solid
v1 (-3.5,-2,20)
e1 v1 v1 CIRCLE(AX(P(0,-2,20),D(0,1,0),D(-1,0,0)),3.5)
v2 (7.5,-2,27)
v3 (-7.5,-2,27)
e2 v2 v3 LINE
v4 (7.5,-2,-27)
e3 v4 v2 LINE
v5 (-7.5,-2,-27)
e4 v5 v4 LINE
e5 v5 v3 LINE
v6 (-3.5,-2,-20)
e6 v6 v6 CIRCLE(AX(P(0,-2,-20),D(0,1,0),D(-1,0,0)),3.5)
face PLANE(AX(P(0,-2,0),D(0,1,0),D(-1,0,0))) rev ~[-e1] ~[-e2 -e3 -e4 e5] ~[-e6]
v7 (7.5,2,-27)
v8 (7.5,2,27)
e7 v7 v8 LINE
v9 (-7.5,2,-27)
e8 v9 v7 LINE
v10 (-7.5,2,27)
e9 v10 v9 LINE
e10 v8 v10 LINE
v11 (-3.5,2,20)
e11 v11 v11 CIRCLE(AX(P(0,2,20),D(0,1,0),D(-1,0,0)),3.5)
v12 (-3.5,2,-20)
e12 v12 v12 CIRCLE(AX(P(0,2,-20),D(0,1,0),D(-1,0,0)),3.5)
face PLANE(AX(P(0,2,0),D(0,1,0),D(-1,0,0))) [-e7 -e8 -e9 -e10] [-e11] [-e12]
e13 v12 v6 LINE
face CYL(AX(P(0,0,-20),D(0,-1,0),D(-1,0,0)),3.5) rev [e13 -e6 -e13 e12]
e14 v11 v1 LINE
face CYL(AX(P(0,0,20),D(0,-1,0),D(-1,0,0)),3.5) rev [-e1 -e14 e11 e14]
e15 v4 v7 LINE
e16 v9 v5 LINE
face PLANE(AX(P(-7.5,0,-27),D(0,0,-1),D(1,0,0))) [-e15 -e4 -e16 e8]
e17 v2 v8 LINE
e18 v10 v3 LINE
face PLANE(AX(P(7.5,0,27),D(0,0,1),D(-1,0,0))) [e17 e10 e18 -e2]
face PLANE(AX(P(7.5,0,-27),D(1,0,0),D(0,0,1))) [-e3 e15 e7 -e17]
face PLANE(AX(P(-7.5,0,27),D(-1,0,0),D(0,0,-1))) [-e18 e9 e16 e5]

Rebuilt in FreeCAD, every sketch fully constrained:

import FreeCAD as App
import Part
import Sketcher
Q = App.Units.Quantity

doc = App.newDocument("Part")
params = doc.addObject("Spreadsheet::Sheet", "Params")
for row, (alias, value) in enumerate([
    ("sketch1_diameter", "7 mm"),
    ("sketch1_width", "15 mm"),
    ("sketch1_height", "54 mm"),
    ("pad1_length", "4 mm"),
], start=1):
    params.set(f"A{row}", alias)
    params.set(f"B{row}", "=" + value)
    params.setAlias(f"B{row}", alias)

body = doc.addObject("PartDesign::Body", "Body")

sketch1 = doc.addObject("Sketcher::SketchObject", "Sketch")
body.addObject(sketch1)
sketch1.AttachmentSupport = (doc.XZ_Plane, [""])
sketch1.MapMode = "FlatFace"
sketch1.addGeometry([
    Part.LineSegment(App.Vector(-7.5, 27, 0), App.Vector(7.5, 27, 0)),
    Part.LineSegment(App.Vector(7.5, 27, 0), App.Vector(7.5, -27, 0)),
    Part.LineSegment(App.Vector(7.5, -27, 0), App.Vector(-7.5, -27, 0)),
    Part.LineSegment(App.Vector(-7.5, -27, 0), App.Vector(-7.5, 27, 0)),
    Part.Circle(App.Vector(0, -20, 0), App.Vector(0, 0, 1), 3.5),
    Part.Circle(App.Vector(0, 20, 0), App.Vector(0, 0, 1), 3.5),
], False)
sketch1.addConstraint([
    Sketcher.Constraint("Coincident", 0, 2, 1, 1),
    Sketcher.Constraint("Coincident", 1, 2, 2, 1),
    Sketcher.Constraint("Coincident", 2, 2, 3, 1),
    Sketcher.Constraint("Coincident", 3, 2, 0, 1),
    Sketcher.Constraint("Horizontal", 0),
    Sketcher.Constraint("Vertical", 1),
    Sketcher.Constraint("Horizontal", 2),
    Sketcher.Constraint("Vertical", 3),
    Sketcher.Constraint("Equal", 4, 5),
    Sketcher.Constraint("Symmetric", 4, 3, 5, 3, -1, 1),
    Sketcher.Constraint("Symmetric", 0, 2, 2, 2, -1, 1),
    Sketcher.Constraint("PointOnObject", 4, 3, -2),
    Sketcher.Constraint("Diameter", 4, Q("7 mm")),
    Sketcher.Constraint("DistanceX", 0, 1, 0, 2, Q("15 mm")),
    Sketcher.Constraint("DistanceY", 1, 2, 1, 1, Q("54 mm")),
    Sketcher.Constraint("DistanceY", 4, 3, 5, 3, Q("40 mm")),
])
sketch1.setExpression("Constraints[12]", "Params.sketch1_diameter")
sketch1.setExpression("Constraints[13]", "Params.sketch1_width")
sketch1.setExpression("Constraints[14]", "Params.sketch1_height")
pad1 = doc.addObject("PartDesign::Pad", "Pad")
body.addObject(pad1)
pad1.Profile = sketch1
pad1.setExpression("Length", "Params.pad1_length")
pad1.Midplane = True

doc.recompute()
